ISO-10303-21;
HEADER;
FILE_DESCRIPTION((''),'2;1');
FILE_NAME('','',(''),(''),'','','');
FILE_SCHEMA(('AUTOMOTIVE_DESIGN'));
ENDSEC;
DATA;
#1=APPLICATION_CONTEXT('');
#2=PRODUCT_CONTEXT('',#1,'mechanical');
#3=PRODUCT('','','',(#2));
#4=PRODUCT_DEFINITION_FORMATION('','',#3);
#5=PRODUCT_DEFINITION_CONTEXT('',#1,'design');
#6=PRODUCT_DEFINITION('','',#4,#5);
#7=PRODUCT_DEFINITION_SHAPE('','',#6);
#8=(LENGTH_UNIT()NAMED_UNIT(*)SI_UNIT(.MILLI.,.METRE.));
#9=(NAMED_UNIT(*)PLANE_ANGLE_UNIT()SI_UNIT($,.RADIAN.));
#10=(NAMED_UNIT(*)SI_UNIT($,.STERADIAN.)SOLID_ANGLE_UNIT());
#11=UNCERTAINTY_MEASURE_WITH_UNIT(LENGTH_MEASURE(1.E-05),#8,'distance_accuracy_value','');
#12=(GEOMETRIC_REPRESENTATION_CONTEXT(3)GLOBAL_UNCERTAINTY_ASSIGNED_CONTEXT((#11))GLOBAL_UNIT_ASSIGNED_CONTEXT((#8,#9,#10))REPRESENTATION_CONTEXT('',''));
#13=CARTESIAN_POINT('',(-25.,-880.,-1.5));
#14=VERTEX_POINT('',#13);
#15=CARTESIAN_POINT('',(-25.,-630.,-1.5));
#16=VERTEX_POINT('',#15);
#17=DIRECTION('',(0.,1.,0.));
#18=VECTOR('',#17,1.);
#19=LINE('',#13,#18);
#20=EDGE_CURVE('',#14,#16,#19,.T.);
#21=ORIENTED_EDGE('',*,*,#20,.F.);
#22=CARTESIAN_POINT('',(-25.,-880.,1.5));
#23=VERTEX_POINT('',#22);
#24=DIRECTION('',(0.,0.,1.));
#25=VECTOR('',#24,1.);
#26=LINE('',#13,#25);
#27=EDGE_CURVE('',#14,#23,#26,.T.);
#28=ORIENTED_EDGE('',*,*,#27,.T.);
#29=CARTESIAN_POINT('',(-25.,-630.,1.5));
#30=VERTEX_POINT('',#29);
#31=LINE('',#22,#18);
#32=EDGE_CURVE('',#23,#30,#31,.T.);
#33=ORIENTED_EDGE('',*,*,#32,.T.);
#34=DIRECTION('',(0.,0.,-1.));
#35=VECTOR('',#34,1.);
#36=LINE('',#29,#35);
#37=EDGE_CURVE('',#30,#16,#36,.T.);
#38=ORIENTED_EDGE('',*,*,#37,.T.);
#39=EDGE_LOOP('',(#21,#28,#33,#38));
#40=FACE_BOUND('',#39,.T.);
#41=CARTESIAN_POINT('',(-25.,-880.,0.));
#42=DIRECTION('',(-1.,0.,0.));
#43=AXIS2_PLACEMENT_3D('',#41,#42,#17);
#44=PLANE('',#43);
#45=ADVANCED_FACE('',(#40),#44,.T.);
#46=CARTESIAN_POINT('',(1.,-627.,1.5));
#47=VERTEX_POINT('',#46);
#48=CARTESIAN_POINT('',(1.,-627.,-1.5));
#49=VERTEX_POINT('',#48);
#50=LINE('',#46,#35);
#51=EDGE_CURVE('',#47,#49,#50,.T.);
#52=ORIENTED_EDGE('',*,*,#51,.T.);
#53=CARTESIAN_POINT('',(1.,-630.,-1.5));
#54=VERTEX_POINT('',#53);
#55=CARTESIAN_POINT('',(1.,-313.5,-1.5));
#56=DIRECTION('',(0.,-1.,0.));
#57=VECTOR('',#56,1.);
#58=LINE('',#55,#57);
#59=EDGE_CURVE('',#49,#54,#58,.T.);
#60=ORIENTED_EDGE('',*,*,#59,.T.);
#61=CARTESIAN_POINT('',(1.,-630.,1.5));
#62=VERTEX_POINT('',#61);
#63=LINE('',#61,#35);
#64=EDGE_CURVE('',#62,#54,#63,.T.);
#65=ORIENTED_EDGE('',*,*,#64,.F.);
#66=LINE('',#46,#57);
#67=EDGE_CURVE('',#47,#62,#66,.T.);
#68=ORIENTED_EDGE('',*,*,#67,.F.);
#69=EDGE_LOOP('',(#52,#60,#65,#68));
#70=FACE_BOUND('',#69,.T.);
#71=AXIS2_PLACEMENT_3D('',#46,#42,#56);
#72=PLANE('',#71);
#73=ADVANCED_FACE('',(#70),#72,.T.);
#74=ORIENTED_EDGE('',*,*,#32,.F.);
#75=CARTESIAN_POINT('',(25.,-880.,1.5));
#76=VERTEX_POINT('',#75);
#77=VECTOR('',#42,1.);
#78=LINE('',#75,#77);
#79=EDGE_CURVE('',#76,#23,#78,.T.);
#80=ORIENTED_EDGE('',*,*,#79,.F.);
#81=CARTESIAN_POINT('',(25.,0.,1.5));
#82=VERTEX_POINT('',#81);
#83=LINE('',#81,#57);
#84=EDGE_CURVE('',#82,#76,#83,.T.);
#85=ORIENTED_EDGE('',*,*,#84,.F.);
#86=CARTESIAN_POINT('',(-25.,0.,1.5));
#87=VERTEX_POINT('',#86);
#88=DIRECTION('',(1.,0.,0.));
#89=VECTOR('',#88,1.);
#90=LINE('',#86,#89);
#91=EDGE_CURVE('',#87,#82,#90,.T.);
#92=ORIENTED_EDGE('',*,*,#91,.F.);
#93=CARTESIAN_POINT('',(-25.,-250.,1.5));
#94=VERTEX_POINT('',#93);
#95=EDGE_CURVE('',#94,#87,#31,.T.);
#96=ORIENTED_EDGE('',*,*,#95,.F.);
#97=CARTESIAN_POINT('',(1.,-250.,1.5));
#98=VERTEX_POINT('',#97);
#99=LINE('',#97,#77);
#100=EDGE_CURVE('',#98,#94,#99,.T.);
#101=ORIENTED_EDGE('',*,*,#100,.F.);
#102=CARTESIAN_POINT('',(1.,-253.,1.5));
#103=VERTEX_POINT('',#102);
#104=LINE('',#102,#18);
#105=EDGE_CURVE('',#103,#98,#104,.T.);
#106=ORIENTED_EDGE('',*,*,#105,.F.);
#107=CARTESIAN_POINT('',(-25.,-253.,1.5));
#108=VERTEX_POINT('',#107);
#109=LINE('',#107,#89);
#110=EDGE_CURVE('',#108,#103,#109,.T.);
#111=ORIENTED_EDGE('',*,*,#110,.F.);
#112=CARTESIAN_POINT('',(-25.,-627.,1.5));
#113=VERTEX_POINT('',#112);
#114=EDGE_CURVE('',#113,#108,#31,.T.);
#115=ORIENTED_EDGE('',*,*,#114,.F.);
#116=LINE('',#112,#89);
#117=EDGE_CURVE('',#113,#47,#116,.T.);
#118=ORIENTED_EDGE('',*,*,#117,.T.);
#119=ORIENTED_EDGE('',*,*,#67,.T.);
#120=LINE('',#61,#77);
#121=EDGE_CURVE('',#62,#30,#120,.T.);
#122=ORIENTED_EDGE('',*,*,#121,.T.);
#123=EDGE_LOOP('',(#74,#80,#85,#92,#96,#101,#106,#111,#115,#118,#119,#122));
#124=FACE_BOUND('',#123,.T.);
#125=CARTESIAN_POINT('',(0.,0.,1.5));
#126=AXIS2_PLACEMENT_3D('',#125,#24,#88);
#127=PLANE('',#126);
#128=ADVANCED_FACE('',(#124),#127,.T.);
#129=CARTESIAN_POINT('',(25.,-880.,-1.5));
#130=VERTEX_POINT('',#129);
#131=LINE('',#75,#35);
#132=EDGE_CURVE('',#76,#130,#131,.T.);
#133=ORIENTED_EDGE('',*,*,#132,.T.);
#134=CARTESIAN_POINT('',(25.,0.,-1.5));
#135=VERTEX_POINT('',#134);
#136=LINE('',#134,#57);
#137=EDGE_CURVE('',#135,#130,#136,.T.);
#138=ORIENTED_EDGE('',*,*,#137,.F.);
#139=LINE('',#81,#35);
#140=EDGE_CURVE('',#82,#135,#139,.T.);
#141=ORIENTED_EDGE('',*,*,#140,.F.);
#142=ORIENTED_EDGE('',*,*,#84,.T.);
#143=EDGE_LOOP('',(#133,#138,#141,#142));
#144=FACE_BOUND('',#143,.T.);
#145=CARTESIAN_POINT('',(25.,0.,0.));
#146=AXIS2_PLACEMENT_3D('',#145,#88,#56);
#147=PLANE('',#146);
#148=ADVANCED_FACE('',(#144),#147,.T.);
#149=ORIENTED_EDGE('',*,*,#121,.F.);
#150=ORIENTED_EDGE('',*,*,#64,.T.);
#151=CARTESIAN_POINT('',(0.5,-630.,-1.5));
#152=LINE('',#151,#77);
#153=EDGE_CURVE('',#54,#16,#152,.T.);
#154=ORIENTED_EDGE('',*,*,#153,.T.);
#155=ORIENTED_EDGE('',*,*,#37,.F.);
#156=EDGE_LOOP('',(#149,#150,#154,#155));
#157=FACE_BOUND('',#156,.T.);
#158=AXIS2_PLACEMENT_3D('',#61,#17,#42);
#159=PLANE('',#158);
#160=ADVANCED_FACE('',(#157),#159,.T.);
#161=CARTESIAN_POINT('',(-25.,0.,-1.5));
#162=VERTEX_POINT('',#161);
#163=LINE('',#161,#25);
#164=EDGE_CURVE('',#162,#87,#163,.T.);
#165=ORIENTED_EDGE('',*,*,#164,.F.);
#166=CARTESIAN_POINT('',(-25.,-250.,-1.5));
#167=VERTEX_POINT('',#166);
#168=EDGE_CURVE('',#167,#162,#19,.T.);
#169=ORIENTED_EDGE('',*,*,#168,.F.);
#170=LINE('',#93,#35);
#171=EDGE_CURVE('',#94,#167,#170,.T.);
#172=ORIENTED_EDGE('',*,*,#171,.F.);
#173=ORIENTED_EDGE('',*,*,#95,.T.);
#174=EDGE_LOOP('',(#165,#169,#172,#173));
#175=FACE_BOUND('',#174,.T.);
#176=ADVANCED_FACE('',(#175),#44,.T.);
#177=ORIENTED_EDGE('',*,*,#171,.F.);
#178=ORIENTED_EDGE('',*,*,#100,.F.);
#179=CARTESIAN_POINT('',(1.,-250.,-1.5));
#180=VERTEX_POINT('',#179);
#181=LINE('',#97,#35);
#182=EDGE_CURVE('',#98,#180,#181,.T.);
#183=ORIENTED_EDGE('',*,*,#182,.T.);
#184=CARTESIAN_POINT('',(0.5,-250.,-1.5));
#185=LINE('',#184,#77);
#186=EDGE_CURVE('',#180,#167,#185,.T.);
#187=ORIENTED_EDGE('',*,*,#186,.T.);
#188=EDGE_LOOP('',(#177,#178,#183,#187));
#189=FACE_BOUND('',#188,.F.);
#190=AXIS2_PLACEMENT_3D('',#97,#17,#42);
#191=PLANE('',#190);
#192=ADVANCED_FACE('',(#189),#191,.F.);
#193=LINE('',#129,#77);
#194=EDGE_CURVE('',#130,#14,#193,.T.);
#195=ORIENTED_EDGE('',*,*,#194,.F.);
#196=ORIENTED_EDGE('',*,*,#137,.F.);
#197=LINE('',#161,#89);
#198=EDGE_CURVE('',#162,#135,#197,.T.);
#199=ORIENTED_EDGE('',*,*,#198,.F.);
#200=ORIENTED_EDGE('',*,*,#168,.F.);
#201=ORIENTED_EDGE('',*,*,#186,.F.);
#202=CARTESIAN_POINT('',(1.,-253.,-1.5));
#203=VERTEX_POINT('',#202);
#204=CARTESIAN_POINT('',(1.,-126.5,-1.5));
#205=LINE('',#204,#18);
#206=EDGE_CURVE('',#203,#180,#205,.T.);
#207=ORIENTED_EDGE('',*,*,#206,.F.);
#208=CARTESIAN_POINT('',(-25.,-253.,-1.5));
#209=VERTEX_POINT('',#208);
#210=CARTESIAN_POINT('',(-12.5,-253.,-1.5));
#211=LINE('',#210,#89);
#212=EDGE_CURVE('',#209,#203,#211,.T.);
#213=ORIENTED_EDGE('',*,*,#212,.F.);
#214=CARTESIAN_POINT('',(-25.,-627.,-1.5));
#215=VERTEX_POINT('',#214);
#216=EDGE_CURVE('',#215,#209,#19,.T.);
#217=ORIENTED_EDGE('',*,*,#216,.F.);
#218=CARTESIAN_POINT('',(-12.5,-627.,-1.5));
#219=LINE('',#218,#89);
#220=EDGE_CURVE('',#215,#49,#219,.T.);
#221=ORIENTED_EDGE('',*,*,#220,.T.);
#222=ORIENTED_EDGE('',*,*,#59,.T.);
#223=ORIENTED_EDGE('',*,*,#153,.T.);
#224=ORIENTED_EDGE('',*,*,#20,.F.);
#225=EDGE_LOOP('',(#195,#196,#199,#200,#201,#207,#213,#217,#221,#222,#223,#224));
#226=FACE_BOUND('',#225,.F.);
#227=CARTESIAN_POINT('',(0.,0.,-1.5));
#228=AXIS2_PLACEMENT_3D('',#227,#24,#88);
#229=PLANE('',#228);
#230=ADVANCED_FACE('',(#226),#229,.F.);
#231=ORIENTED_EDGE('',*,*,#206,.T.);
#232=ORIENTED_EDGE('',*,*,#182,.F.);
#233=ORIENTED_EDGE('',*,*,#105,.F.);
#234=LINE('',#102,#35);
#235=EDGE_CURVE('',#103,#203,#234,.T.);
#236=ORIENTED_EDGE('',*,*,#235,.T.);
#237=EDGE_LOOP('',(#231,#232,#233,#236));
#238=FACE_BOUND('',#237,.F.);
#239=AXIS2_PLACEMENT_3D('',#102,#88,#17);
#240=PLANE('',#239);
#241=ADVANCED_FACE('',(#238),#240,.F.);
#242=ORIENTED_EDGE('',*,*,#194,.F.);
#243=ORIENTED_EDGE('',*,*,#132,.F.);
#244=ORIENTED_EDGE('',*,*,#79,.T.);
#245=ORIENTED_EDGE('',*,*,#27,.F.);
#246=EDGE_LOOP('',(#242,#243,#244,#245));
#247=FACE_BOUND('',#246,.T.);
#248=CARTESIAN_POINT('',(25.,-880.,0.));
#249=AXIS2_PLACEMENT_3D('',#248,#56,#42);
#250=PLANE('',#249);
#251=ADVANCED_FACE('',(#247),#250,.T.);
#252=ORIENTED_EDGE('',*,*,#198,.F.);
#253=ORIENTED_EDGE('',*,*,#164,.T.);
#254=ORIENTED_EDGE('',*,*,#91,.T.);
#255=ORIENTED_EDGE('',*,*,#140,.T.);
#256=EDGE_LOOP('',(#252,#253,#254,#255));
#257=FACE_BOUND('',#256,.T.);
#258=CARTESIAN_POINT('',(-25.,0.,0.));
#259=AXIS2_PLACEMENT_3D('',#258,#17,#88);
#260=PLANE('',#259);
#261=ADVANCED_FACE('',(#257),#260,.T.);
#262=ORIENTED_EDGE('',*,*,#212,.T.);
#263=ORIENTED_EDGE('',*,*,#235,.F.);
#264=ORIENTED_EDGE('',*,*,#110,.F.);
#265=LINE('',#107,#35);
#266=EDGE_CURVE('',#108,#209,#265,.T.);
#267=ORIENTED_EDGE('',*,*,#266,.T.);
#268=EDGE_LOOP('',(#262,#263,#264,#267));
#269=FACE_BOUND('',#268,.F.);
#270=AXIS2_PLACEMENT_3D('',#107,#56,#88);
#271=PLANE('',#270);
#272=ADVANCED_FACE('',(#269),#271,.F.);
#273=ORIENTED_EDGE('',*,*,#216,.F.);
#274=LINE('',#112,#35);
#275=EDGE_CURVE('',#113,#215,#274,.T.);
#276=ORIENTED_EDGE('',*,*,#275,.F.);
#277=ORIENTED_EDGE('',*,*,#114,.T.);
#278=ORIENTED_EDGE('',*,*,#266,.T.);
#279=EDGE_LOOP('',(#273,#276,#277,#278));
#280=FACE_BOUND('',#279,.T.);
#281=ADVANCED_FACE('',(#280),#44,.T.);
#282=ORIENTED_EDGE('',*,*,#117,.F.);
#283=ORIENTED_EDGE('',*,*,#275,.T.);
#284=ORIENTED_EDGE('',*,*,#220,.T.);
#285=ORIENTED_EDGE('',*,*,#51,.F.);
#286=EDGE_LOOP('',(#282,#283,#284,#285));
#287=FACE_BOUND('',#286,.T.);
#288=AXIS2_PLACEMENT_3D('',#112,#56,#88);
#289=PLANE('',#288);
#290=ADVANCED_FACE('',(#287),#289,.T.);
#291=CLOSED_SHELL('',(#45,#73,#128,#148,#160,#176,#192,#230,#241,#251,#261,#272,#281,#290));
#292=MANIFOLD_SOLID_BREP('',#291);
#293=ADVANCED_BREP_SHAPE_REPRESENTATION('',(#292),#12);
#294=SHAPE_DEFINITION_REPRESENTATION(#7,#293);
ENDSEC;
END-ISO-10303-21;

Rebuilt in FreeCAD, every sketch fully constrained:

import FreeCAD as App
import Part
import Sketcher
from FreeCAD import Vector
Q = App.Units.Quantity

doc = App.newDocument("Part")
body = doc.addObject("PartDesign::Body", "Body")

# Sketch on XY plane
sketch1 = body.newObject("Sketcher::SketchObject", "Sketch")
sketch1.AttachmentSupport = (doc.getObject("XY_Plane"), [""])
sketch1.MapMode = "FlatFace"
sketch1.addGeometry(Part.LineSegment(Vector(25, 0, 0), Vector(-25, 0, 0)), False)
sketch1.addGeometry(Part.LineSegment(Vector(-25, 0, 0), Vector(-25, -880, 0)), False)
sketch1.addGeometry(Part.LineSegment(Vector(-25, -880, 0), Vector(25, -880, 0)), False)
sketch1.addGeometry(Part.LineSegment(Vector(25, -880, 0), Vector(25, 0, 0)), False)
sketch1.addConstraint(Sketcher.Constraint("Coincident", 0, 2, 1, 1))
sketch1.addConstraint(Sketcher.Constraint("Coincident", 1, 2, 2, 1))
sketch1.addConstraint(Sketcher.Constraint("Coincident", 2, 2, 3, 1))
sketch1.addConstraint(Sketcher.Constraint("Coincident", 3, 2, 0, 1))
sketch1.addConstraint(Sketcher.Constraint("Horizontal", 0))
sketch1.addConstraint(Sketcher.Constraint("Vertical", 1))
sketch1.addConstraint(Sketcher.Constraint("Horizontal", 2))
sketch1.addConstraint(Sketcher.Constraint("Vertical", 3))
sketch1.addConstraint(Sketcher.Constraint("Symmetric", 0, 2, 3, 2, -1, 1))
sketch1.addConstraint(Sketcher.Constraint("DistanceX", 0, 2, 0, 1, Q("50 mm")))
sketch1.addConstraint(Sketcher.Constraint("DistanceY", 1, 2, 1, 1, Q("880 mm")))
pad1 = body.newObject("PartDesign::Pad", "Pad")
pad1.Profile = sketch1
pad1.Length = 3
pad1.Midplane = True

# Sketch on XY plane
sketch2 = body.newObject("Sketcher::SketchObject", "Sketch001")
sketch2.AttachmentSupport = (doc.getObject("XY_Plane"), [""])
sketch2.MapMode = "FlatFace"
sketch2.AttachmentOffset = App.Placement(Vector(0, 0, 1.5), App.Rotation())
sketch2.addGeometry(Part.LineSegment(Vector(1, -627, 0), Vector(-25, -627, 0)), False)
sketch2.addGeometry(Part.LineSegment(Vector(-25, -627, 0), Vector(-25, -630, 0)), False)
sketch2.addGeometry(Part.LineSegment(Vector(-25, -630, 0), Vector(1, -630, 0)), False)
sketch2.addGeometry(Part.LineSegment(Vector(1, -630, 0), Vector(1, -627, 0)), False)
sketch2.addGeometry(Part.LineSegment(Vector(-25, -250, 0), Vector(-25, -253, 0)), False)
sketch2.addGeometry(Part.LineSegment(Vector(-25, -253, 0), Vector(1, -253, 0)), False)
sketch2.addGeometry(Part.LineSegment(Vector(1, -253, 0), Vector(1, -250, 0)), False)
sketch2.addGeometry(Part.LineSegment(Vector(1, -250, 0), Vector(-25, -250, 0)), False)
sketch2.addConstraint(Sketcher.Constraint("Coincident", 0, 2, 1, 1))
sketch2.addConstraint(Sketcher.Constraint("Coincident", 1, 2, 2, 1))
sketch2.addConstraint(Sketcher.Constraint("Coincident", 2, 2, 3, 1))
sketch2.addConstraint(Sketcher.Constraint("Coincident", 3, 2, 0, 1))
sketch2.addConstraint(Sketcher.Constraint("Coincident", 4, 2, 5, 1))
sketch2.addConstraint(Sketcher.Constraint("Coincident", 5, 2, 6, 1))
sketch2.addConstraint(Sketcher.Constraint("Coincident", 6, 2, 7, 1))
sketch2.addConstraint(Sketcher.Constraint("Coincident", 7, 2, 4, 1))
sketch2.addConstraint(Sketcher.Constraint("Horizontal", 0))
sketch2.addConstraint(Sketcher.Constraint("Vertical", 1))
sketch2.addConstraint(Sketcher.Constraint("Horizontal", 2))
sketch2.addConstraint(Sketcher.Constraint("Vertical", 3))
sketch2.addConstraint(Sketcher.Constraint("Vertical", 4))
sketch2.addConstraint(Sketcher.Constraint("Horizontal", 5))
sketch2.addConstraint(Sketcher.Constraint("Vertical", 6))
sketch2.addConstraint(Sketcher.Constraint("Horizontal", 7))
sketch2.addConstraint(Sketcher.Constraint("Vertical", 1, 2, 4, 2))
sketch2.addConstraint(Sketcher.Constraint("Vertical", 3, 2, 5, 2))
sketch2.addConstraint(Sketcher.Constraint("Equal", 3, 4))
sketch2.addConstraint(Sketcher.Constraint("DistanceX", 0, 2, 0, 1, Q("26 mm")))
sketch2.addConstraint(Sketcher.Constraint("DistanceY", 1, 2, 1, 1, Q("3 mm")))
sketch2.addConstraint(Sketcher.Constraint("DistanceX", 0, 2, -1, 1, Q("25 mm")))
sketch2.addConstraint(Sketcher.Constraint("DistanceY", 0, 2, -1, 1, Q("627 mm")))
sketch2.addConstraint(Sketcher.Constraint("DistanceY", 4, 2, -1, 1, Q("253 mm")))
pocket1 = body.newObject("PartDesign::Pocket", "Pocket")
pocket1.Profile = sketch2
pocket1.Type = "ThroughAll"

doc.recompute()
